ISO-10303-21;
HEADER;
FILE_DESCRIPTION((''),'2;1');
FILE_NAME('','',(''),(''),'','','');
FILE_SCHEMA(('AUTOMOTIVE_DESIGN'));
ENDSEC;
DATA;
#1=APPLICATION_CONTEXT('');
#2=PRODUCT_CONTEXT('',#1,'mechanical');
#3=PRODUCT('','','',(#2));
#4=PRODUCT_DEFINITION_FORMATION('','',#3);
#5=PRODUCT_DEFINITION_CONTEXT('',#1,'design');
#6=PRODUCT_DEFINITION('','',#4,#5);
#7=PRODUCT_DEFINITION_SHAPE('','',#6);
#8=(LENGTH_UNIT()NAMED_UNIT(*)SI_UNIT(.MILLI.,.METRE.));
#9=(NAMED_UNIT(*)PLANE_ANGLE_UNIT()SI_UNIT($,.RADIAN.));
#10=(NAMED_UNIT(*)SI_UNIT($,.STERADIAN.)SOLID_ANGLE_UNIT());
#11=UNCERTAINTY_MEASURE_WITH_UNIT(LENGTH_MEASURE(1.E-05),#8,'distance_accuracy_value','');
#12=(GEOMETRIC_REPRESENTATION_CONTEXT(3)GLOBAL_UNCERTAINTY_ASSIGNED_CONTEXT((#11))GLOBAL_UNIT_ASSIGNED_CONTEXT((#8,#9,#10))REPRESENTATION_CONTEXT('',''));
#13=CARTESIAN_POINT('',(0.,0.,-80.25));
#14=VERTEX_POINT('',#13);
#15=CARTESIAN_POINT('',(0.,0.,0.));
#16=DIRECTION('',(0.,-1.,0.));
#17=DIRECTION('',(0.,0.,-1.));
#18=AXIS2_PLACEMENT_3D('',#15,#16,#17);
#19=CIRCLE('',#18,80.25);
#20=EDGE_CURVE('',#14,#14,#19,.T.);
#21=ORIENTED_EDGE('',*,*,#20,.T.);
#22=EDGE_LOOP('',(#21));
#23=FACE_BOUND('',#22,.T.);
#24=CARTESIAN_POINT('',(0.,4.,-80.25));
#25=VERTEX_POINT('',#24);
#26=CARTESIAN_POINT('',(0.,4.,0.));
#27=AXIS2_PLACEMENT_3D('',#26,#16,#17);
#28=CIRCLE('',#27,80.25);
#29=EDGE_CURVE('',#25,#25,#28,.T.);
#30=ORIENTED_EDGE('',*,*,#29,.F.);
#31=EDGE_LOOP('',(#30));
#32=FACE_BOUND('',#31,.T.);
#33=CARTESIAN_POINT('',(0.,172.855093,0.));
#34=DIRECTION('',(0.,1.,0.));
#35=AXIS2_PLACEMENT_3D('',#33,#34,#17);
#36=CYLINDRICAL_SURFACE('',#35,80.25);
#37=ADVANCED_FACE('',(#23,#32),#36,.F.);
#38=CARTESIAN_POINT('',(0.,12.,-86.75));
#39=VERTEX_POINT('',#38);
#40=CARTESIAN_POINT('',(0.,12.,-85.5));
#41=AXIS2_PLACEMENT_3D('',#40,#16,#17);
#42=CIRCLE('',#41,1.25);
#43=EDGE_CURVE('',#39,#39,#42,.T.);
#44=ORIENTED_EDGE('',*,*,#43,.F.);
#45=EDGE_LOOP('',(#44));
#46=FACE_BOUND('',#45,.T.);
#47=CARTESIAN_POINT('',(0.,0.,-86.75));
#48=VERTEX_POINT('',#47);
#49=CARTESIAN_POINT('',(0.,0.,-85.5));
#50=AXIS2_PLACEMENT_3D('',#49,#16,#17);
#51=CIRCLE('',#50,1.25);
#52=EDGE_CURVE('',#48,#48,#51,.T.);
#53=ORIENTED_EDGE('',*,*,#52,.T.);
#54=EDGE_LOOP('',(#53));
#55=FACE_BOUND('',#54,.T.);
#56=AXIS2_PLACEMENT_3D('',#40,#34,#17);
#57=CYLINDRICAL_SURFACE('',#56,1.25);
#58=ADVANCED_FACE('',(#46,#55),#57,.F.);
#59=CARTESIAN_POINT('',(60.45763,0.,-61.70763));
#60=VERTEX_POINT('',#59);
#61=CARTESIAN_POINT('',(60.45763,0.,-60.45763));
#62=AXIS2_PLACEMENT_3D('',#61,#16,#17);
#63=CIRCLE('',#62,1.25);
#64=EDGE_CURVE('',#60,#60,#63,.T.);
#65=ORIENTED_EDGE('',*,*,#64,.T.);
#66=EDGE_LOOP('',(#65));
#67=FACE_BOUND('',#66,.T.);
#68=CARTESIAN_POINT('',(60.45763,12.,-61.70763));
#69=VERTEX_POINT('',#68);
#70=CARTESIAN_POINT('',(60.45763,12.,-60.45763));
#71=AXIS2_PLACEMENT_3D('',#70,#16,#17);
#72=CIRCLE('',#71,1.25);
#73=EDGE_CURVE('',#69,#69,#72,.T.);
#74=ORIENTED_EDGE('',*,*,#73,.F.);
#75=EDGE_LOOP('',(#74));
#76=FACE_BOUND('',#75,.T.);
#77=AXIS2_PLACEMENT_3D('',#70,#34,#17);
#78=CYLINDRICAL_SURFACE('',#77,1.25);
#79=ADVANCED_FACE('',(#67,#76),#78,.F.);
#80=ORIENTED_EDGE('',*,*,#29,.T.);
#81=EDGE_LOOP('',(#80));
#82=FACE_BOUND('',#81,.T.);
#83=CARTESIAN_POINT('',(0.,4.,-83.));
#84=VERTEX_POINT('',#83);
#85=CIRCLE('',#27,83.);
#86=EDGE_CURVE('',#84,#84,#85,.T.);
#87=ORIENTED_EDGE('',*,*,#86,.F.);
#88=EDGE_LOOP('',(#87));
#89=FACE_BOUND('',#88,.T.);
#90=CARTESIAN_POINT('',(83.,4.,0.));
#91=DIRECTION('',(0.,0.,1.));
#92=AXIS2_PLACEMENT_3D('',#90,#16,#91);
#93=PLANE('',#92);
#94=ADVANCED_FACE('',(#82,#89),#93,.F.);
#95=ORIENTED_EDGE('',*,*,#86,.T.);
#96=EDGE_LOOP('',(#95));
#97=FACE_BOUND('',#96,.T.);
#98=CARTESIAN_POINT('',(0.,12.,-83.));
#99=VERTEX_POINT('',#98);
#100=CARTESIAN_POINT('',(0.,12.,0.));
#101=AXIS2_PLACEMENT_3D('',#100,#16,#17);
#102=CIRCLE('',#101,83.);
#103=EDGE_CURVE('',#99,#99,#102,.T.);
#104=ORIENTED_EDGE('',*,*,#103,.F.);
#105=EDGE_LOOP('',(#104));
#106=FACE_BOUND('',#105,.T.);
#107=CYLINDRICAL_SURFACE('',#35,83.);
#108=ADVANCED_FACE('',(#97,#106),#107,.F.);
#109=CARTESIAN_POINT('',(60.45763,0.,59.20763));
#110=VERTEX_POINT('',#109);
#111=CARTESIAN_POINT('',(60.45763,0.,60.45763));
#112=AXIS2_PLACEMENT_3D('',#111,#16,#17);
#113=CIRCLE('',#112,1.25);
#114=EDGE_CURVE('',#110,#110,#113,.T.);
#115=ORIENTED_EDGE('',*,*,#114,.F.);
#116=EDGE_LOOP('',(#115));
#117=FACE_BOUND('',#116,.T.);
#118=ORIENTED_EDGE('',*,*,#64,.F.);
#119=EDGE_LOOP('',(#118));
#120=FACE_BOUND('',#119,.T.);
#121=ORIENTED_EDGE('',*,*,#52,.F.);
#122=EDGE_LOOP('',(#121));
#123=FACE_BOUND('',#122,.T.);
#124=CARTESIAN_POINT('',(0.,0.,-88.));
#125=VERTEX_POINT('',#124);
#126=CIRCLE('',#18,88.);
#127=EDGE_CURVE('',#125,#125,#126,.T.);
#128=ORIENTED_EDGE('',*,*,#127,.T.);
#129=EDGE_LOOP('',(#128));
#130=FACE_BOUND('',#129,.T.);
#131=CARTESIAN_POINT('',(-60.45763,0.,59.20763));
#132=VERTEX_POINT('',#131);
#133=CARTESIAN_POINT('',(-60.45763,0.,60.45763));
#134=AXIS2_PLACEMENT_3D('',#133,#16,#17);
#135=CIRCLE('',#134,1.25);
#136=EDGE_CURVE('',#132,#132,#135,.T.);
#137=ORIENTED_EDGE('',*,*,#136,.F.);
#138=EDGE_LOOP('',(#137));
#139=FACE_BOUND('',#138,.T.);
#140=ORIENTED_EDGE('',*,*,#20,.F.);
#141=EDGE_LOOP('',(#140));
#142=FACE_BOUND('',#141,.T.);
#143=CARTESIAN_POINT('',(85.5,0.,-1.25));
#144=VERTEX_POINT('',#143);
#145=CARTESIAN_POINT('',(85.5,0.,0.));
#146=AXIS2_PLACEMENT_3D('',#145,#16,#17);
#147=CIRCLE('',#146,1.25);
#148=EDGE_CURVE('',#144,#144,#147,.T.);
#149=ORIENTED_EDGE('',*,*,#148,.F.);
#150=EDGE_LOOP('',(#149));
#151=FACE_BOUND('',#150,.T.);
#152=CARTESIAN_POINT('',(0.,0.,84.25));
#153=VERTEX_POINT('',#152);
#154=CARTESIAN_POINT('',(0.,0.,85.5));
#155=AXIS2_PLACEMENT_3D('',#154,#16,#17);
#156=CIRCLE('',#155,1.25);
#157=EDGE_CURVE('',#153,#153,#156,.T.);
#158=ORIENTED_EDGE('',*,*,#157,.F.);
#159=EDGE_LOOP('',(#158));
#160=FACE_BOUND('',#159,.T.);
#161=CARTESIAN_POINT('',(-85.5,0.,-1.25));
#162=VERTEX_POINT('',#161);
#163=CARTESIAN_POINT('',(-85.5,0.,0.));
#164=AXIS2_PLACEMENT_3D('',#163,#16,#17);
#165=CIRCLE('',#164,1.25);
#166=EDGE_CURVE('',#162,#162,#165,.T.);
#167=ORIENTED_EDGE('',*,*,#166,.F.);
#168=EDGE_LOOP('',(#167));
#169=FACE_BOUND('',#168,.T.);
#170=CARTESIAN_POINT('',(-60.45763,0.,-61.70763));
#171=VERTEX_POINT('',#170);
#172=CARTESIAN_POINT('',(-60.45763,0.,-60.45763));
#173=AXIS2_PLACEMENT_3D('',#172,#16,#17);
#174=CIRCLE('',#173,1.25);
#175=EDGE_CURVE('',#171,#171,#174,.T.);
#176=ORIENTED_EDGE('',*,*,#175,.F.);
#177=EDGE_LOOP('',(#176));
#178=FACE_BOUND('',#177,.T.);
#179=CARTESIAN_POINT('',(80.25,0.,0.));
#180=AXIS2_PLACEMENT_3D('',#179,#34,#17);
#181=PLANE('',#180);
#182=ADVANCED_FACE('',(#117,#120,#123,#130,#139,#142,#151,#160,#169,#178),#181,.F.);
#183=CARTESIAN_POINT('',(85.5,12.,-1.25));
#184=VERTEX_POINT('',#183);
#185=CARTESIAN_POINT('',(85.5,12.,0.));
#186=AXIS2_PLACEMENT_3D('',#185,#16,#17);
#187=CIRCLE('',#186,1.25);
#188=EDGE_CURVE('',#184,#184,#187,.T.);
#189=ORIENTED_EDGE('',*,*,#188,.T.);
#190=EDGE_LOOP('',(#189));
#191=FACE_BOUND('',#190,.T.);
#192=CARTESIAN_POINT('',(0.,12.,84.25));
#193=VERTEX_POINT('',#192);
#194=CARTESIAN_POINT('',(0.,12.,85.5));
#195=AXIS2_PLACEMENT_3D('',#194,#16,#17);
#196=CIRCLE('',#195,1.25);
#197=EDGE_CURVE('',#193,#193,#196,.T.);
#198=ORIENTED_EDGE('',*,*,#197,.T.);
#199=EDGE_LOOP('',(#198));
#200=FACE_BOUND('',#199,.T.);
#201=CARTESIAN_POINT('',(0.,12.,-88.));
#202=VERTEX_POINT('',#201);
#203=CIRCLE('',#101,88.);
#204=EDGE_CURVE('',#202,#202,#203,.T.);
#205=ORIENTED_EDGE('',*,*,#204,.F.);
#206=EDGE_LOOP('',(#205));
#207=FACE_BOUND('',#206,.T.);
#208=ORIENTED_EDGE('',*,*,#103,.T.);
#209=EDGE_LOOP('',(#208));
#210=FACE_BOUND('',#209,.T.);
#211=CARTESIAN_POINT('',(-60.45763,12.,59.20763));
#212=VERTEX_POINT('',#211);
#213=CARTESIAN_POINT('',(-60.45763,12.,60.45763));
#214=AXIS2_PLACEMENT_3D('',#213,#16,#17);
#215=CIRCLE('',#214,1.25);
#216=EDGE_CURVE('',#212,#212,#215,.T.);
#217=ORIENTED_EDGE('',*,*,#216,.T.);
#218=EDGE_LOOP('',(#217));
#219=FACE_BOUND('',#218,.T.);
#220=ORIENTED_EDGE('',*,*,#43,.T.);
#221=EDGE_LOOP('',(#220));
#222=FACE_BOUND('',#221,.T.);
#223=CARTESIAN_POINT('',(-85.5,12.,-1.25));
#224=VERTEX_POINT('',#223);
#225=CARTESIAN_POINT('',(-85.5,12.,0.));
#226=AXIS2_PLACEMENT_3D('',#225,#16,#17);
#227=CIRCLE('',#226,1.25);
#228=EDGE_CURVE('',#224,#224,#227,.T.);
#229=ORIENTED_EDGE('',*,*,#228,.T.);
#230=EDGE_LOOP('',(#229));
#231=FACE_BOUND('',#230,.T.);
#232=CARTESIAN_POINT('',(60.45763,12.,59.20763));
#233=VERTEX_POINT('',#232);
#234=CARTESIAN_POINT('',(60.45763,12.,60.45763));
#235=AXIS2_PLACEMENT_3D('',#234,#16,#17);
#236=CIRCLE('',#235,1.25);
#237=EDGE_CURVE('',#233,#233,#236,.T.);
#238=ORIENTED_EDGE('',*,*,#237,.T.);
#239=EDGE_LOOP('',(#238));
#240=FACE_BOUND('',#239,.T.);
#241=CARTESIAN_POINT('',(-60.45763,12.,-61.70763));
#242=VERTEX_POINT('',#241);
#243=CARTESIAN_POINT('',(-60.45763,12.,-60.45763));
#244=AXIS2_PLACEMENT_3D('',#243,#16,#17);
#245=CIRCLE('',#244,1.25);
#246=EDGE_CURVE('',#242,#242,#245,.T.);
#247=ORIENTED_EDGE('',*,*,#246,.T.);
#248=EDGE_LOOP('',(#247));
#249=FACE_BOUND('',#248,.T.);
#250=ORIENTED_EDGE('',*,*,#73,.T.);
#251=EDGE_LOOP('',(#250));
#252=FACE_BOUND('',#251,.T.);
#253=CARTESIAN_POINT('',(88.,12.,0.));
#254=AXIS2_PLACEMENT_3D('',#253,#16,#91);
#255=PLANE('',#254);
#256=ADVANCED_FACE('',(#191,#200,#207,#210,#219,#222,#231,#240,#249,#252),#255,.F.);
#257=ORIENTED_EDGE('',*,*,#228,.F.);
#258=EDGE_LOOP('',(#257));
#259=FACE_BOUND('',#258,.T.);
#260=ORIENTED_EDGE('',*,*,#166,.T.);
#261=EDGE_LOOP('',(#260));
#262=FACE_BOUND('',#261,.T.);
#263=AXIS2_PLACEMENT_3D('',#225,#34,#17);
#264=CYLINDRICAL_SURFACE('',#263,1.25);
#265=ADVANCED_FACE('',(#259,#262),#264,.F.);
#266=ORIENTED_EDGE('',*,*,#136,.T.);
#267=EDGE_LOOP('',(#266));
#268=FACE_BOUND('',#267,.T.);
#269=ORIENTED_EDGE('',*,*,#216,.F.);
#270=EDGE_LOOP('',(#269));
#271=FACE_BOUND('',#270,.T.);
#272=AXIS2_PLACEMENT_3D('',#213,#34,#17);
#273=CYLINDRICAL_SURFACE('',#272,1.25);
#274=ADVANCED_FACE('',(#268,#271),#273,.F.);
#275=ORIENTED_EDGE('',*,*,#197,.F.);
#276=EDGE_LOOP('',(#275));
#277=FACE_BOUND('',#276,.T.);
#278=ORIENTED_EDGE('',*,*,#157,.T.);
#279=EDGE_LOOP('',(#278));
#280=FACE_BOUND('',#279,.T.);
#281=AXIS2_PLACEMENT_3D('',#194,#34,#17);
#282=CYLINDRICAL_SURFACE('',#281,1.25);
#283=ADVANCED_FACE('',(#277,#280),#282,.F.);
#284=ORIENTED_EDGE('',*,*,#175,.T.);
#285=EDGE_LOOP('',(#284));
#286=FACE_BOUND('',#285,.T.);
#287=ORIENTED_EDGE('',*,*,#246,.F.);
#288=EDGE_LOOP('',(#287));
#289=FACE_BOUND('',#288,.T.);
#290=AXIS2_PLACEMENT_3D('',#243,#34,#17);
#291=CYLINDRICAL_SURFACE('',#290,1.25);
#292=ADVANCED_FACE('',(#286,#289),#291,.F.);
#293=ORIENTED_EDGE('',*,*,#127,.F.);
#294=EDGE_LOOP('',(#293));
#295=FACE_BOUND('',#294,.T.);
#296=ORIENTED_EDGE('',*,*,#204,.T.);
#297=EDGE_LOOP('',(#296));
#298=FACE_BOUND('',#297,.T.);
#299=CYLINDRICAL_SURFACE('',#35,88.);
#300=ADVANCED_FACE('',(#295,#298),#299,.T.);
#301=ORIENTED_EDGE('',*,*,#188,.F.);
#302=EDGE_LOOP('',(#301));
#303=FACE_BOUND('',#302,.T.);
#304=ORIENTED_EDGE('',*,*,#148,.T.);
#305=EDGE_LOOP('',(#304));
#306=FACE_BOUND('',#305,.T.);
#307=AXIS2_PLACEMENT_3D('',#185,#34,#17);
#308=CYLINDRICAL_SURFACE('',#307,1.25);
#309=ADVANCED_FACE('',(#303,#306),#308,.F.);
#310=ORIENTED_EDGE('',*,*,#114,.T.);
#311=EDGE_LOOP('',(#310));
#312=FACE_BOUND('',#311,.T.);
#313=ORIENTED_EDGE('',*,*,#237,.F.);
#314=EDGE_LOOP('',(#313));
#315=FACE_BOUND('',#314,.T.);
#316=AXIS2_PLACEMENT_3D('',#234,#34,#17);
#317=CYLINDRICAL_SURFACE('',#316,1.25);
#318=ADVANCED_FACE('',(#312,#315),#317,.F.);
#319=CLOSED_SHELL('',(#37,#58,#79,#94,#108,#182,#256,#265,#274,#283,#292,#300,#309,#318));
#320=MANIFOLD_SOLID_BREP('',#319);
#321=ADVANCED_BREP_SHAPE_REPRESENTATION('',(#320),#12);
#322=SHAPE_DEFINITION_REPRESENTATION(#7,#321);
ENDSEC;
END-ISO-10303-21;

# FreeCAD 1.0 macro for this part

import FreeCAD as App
import Part
import Sketcher

V = App.Vector


def add_polygon(sketch, points):
    """Adds a closed chain of lines whose ends are joined by coincident constraints."""
    first, n = sketch.GeometryCount, len(points)
    for a, b in zip(points, points[1:] + points[:1]):
        sketch.addGeometry(Part.LineSegment(App.Vector(*a, 0), App.Vector(*b, 0)), False)
    for i in range(n):
        sketch.addConstraint(Sketcher.Constraint("Coincident", first + i, 2, first + (i + 1) % n, 1))

doc = App.newDocument("Part")
body = doc.addObject("PartDesign::Body", "Body")

# Sketch on XY plane
sketch1 = body.newObject("Sketcher::SketchObject", "Sketch")
sketch1.AttachmentSupport = (doc.getObject("XY_Plane"), [""])
sketch1.MapMode = "FlatFace"
add_polygon(sketch1, [(80.25, 0), (88, 0), (88, 12), (83, 12), (83, 4), (80.25, 4)])  # lines 0-5
sketch1.addConstraint(Sketcher.Constraint("Horizontal", 0))
sketch1.addConstraint(Sketcher.Constraint("Vertical", 1))
sketch1.addConstraint(Sketcher.Constraint("Horizontal", 2))
sketch1.addConstraint(Sketcher.Constraint("Vertical", 3))
sketch1.addConstraint(Sketcher.Constraint("Horizontal", 4))
sketch1.addConstraint(Sketcher.Constraint("Vertical", 5))
sketch1.addConstraint(Sketcher.Constraint("PointOnObject", 0, 2, -1))
sketch1.addConstraint(Sketcher.Constraint("DistanceX", 2, 2, 2, 1, 5.0))
sketch1.addConstraint(Sketcher.Constraint("DistanceY", 1, 1, 1, 2, 12.0))
sketch1.addConstraint(Sketcher.Constraint("DistanceY", 3, 2, 3, 1, 8.0))
sketch1.addConstraint(Sketcher.Constraint("DistanceX", -1, 1, 0, 2, 88.0))
sketch1.addConstraint(Sketcher.Constraint("DistanceX", 0, 1, 0, 2, 7.75))
revolution = body.newObject("PartDesign::Revolution", "Revolution")
revolution.Profile = sketch1
revolution.ReferenceAxis = (sketch1, ["V_Axis"])
revolution.Angle = 360

# Sketch on XZ plane
sketch2 = body.newObject("Sketcher::SketchObject", "Sketch001")
sketch2.AttachmentSupport = (doc.getObject("XZ_Plane"), [""])
sketch2.MapMode = "FlatFace"
sketch2.AttachmentOffset = App.Placement(V(0, 0, -12), App.Rotation())
sketch2.addGeometry(Part.Circle(V(-60.45763, -60.45763, 0), V(0, 0, 1), 1.25), False)
sketch2.addGeometry(Part.Circle(V(-85.5, 0, 0), V(0, 0, 1), 1.25), False)
sketch2.addGeometry(Part.Circle(V(0, -85.5, 0), V(0, 0, 1), 1.25), False)
sketch2.addGeometry(Part.Circle(V(60.45763, -60.45763, 0), V(0, 0, 1), 1.25), False)
sketch2.addGeometry(Part.Circle(V(85.5, 0, 0), V(0, 0, 1), 1.25), False)
sketch2.addGeometry(Part.Circle(V(60.45763, 60.45763, 0), V(0, 0, 1), 1.25), False)
sketch2.addGeometry(Part.Circle(V(0, 85.5, 0), V(0, 0, 1), 1.25), False)
sketch2.addGeometry(Part.Circle(V(-60.45763, 60.45763, 0), V(0, 0, 1), 1.25), False)
sketch2.addConstraint(Sketcher.Constraint("Equal", 0, 1))
sketch2.addConstraint(Sketcher.Constraint("Equal", 1, 2))
sketch2.addConstraint(Sketcher.Constraint("Equal", 2, 3))
sketch2.addConstraint(Sketcher.Constraint("Equal", 3, 4))
sketch2.addConstraint(Sketcher.Constraint("Equal", 4, 5))
sketch2.addConstraint(Sketcher.Constraint("Equal", 5, 6))
sketch2.addConstraint(Sketcher.Constraint("Equal", 6, 7))
sketch2.addConstraint(Sketcher.Constraint("Symmetric", 1, 3, 4, 3, -1, 1))
sketch2.addConstraint(Sketcher.Constraint("Symmetric", 0, 3, 5, 3, -1, 1))
sketch2.addConstraint(Sketcher.Constraint("Symmetric", 2, 3, 6, 3, -1, 1))
sketch2.addConstraint(Sketcher.Constraint("Symmetric", 3, 3, 7, 3, -1, 1))
sketch2.addConstraint(Sketcher.Constraint("Symmetric", 0, 3, 3, 3, -2))
sketch2.addConstraint(Sketcher.Constraint("PointOnObject", 1, 3, -1))
sketch2.addConstraint(Sketcher.Constraint("PointOnObject", 2, 3, -2))
sketch2.addConstraint(Sketcher.Constraint("Diameter", 0, 2.5))
sketch2.addConstraint(Sketcher.Constraint("DistanceX", 1, 3, 4, 3, 171.0))
sketch2.addConstraint(Sketcher.Constraint("DistanceY", 2, 3, -1, 1, 85.5))
sketch2.addConstraint(Sketcher.Constraint("DistanceX", 0, 3, -1, 1, 60.45763))
sketch2.addConstraint(Sketcher.Constraint("DistanceY", 0, 3, -1, 1, 60.45763))
doc.recompute()
hole = body.newObject("PartDesign::Hole", "Hole")
hole.Profile = sketch2
hole.ThreadType = "None"
hole.Diameter = 2.5
hole.DepthType = "ThroughAll"
hole.Reversed = True

doc.recompute()
